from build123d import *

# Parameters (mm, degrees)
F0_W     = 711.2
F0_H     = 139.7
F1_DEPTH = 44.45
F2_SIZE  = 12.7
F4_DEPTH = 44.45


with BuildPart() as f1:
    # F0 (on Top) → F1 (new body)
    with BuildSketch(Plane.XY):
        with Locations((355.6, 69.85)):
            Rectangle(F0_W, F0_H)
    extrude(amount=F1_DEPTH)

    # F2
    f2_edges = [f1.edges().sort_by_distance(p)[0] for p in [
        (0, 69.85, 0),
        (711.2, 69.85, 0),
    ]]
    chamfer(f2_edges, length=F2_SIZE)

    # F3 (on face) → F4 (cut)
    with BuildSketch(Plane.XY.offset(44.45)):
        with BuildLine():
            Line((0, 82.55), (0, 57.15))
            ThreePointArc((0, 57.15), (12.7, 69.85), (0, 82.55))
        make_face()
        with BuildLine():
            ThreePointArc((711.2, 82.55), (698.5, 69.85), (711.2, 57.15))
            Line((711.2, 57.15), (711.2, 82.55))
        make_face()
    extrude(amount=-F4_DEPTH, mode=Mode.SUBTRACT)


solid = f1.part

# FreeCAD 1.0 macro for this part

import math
import FreeCAD as App
import Part
import Sketcher
from FreeCAD import Vector
Q = App.Units.Quantity


def edges_at(feature, points):
    """Names of the edges that pass closest to the given points."""
    edges = feature.Shape.Edges
    near = lambda p: min(range(len(edges)), key=lambda i: edges[i].distToShape(Part.Vertex(*p))[0])
    return sorted({f"Edge{near(p) + 1}" for p in points})


def add_polygon(sketch, points):
    """Adds a closed chain of lines whose ends are joined by coincident constraints."""
    first, n = sketch.GeometryCount, len(points)
    for a, b in zip(points, points[1:] + points[:1]):
        sketch.addGeometry(Part.LineSegment(App.Vector(*a, 0), App.Vector(*b, 0)), False)
    for i in range(n):
        sketch.addConstraint(Sketcher.Constraint("Coincident", first + i, 2, first + (i + 1) % n, 1))

doc = App.newDocument("Part")
params = doc.addObject("Spreadsheet::Sheet", "Params")
for row, (alias, value) in enumerate([
    ("sketch1_width", "28 in"),
    ("sketch1_height", "5.5 in"),
    ("pad1_length", "1.75 in"),
    ("chamfer_size", "0.5 in"),
    ("sketch2_radius", "0.5 in"),
    ("pocket1_length", "1.75 in"),
], start=1):
    params.set(f"A{row}", alias)
    params.set(f"B{row}", "=" + value)
    params.setAlias(f"B{row}", alias)

body = doc.addObject("PartDesign::Body", "Body")

# Sketch on XY plane
sketch1 = doc.addObject("Sketcher::SketchObject", "Sketch")
body.addObject(sketch1)
sketch1.AttachmentSupport = (doc.XY_Plane, [""])
sketch1.MapMode = "FlatFace"
add_polygon(sketch1, [(0, 140), (0, 0), (711, 0), (711, 140)])  # lines 0-3
sketch1.addConstraint(Sketcher.Constraint("Vertical", 0))
sketch1.addConstraint(Sketcher.Constraint("Horizontal", 1))
sketch1.addConstraint(Sketcher.Constraint("Vertical", 2))
sketch1.addConstraint(Sketcher.Constraint("Horizontal", 3))
sketch1.addConstraint(Sketcher.Constraint("Coincident", 0, 2, -1, 1))
sketch1.addConstraint(Sketcher.Constraint("DistanceX", 1, 1, 1, 2, Q("28 in")))
sketch1.addConstraint(Sketcher.Constraint("DistanceY", 0, 2, 0, 1, Q("5.5 in")))
sketch1.setExpression("Constraints[9]", "Params.sketch1_width")
sketch1.setExpression("Constraints[10]", "Params.sketch1_height")
pad1 = doc.addObject("PartDesign::Pad", "Pad")
body.addObject(pad1)
pad1.Profile = sketch1
pad1.setExpression("Length", "Params.pad1_length")
doc.recompute()

chamfer = doc.addObject("PartDesign::Chamfer", "Chamfer")
body.addObject(chamfer)
chamfer.Base = (pad1, edges_at(pad1, [(0, 69.85, 0), (711.2, 69.85, 0)]))
chamfer.setExpression("Size", "Params.chamfer_size")

# Sketch on XY plane
sketch2 = doc.addObject("Sketcher::SketchObject", "Sketch001")
body.addObject(sketch2)
sketch2.AttachmentSupport = (doc.XY_Plane, [""])
sketch2.MapMode = "FlatFace"
sketch2.AttachmentOffset = App.Placement(Vector(0, 0, 1.75 * 25.4), App.Rotation())
sketch2.addGeometry(Part.LineSegment(Vector(0, 83, 0), Vector(0, 57, 0)), False)
sketch2.addGeometry(Part.ArcOfCircle(Part.Circle(Vector(0, 70, 0), Vector(0, 0, 1), 13), math.radians(-90), math.radians(90)), False)
sketch2.addGeometry(Part.ArcOfCircle(Part.Circle(Vector(711, 70, 0), Vector(0, 0, 1), 13), math.radians(90), math.radians(270)), False)
sketch2.addGeometry(Part.LineSegment(Vector(711, 57, 0), Vector(711, 83, 0)), False)
sketch2.addConstraint(Sketcher.Constraint("Coincident", 0, 1, 1, 2))
sketch2.addConstraint(Sketcher.Constraint("Coincident", 1, 1, 0, 2))
sketch2.addConstraint(Sketcher.Constraint("Coincident", 2, 1, 3, 2))
sketch2.addConstraint(Sketcher.Constraint("Coincident", 3, 1, 2, 2))
sketch2.addConstraint(Sketcher.Constraint("Vertical", 0))
sketch2.addConstraint(Sketcher.Constraint("Vertical", 3))
sketch2.addConstraint(Sketcher.Constraint("Equal", 1, 2))
sketch2.addConstraint(Sketcher.Constraint("PointOnObject", 1, 3, -2))
sketch2.addConstraint(Sketcher.Constraint("PointOnObject", 0, 1, -2))
sketch2.addConstraint(Sketcher.Constraint("Horizontal", 1, 3, 2, 3))
sketch2.addConstraint(Sketcher.Constraint("Radius", 1, Q("0.5 in")))
sketch2.addConstraint(Sketcher.Constraint("DistanceX", -1, 1, 2, 3, Q("28 in")))
sketch2.addConstraint(Sketcher.Constraint("DistanceX", -1, 1, 2, 1, Q("28 in")))
sketch2.addConstraint(Sketcher.Constraint("DistanceY", -1, 1, 1, 3, Q("2.75 in")))
sketch2.setExpression("Constraints[10]", "Params.sketch2_radius")
pocket1 = doc.addObject("PartDesign::Pocket", "Pocket")
body.addObject(pocket1)
pocket1.Profile = sketch2
pocket1.setExpression("Length", "Params.pocket1_length")

doc.recompute()
